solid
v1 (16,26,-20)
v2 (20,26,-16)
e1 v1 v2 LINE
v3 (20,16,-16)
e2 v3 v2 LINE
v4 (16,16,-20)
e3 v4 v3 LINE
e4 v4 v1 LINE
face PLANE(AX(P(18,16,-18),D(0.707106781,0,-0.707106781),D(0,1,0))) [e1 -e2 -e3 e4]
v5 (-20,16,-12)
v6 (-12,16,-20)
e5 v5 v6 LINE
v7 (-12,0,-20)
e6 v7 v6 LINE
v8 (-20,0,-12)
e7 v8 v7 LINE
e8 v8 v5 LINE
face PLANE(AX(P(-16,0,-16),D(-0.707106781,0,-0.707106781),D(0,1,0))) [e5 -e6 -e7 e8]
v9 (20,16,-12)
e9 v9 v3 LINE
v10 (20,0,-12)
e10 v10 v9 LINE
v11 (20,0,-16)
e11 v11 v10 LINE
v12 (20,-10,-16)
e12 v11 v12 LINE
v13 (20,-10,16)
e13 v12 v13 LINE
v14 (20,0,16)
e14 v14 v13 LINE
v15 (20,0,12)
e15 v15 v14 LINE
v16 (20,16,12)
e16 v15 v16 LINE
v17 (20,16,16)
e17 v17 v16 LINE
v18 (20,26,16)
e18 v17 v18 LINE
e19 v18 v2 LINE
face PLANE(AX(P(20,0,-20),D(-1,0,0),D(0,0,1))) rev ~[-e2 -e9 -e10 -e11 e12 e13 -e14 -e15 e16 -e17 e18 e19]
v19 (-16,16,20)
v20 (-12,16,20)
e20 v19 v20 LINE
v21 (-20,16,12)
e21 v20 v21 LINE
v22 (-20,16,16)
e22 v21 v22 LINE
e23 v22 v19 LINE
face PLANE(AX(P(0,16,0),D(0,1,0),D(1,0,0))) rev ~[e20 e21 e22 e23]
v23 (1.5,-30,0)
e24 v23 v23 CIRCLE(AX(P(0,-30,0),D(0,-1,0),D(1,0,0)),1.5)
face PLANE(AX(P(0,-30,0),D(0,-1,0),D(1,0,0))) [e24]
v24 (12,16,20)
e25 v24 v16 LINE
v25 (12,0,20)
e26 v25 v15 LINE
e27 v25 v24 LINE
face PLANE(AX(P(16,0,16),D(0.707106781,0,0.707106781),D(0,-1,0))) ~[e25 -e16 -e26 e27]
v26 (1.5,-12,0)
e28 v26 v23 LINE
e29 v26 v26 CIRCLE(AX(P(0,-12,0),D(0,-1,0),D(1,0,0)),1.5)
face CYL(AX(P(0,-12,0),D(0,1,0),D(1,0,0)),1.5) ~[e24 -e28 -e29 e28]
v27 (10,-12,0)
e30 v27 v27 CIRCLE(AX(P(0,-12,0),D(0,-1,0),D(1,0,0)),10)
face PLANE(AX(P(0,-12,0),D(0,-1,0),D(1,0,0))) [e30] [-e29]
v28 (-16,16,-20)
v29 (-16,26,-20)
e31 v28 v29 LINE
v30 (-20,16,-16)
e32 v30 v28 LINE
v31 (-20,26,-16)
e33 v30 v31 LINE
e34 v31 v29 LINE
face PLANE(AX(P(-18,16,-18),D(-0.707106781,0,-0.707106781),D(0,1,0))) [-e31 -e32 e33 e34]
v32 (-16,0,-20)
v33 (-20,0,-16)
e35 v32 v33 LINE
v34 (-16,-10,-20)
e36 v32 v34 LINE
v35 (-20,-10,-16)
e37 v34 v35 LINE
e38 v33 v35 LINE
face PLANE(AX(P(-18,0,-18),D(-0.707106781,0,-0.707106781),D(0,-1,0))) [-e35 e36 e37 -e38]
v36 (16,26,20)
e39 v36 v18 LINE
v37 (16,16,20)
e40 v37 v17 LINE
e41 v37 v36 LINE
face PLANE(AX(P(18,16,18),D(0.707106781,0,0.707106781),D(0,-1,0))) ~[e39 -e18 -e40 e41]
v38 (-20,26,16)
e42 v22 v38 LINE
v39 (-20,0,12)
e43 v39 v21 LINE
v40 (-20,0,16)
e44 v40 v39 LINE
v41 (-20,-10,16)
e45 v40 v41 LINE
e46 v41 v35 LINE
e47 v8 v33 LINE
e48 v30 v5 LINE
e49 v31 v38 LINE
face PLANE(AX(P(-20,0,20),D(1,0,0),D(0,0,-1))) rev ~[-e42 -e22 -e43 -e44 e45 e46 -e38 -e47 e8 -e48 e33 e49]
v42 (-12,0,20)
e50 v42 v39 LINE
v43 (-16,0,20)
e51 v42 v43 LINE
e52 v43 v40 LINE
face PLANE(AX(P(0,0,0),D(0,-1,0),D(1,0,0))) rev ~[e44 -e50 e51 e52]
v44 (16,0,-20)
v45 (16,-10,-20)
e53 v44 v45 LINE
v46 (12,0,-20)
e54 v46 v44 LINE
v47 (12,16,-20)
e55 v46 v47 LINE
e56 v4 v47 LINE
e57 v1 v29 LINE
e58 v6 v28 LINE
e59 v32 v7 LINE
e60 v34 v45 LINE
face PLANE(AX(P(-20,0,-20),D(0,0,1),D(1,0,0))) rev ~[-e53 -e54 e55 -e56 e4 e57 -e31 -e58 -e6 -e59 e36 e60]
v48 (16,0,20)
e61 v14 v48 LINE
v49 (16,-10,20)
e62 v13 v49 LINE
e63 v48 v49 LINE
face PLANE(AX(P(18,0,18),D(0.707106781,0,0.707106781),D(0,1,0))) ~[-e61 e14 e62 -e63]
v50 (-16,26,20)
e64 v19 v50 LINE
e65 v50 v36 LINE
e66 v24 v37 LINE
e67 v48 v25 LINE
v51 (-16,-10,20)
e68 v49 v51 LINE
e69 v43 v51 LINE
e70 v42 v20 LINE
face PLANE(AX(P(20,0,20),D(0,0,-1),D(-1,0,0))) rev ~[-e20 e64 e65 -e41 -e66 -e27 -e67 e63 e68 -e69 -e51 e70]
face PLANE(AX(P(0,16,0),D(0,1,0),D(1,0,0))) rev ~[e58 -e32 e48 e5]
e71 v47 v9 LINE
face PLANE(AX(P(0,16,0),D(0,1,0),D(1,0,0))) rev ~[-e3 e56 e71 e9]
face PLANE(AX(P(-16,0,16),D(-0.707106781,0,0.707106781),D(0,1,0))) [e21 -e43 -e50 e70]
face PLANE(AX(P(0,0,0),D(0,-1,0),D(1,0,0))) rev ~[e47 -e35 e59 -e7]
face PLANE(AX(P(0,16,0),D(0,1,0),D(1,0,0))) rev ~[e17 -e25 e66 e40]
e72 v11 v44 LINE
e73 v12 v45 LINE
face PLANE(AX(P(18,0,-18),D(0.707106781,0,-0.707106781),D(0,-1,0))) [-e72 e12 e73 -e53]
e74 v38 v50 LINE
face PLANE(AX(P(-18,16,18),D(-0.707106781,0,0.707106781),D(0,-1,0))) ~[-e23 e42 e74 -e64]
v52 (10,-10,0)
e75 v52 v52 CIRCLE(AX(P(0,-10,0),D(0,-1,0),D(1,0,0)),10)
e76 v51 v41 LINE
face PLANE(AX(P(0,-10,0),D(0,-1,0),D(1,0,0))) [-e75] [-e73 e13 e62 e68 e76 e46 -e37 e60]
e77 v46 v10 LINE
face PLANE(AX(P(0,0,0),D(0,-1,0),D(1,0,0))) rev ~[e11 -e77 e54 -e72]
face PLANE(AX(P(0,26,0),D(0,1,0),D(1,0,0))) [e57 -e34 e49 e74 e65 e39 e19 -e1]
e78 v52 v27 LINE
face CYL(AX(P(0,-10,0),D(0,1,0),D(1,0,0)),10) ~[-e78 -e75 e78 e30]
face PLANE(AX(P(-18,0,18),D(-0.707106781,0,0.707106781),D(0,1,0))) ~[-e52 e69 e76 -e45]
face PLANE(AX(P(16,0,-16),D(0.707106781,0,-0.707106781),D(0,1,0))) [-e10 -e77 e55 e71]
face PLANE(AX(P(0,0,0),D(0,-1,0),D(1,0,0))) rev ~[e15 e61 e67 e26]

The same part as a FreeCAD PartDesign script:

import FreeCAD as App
import Part
import Sketcher
from FreeCAD import Vector


def edges_at(feature, points):
    """Names of the edges that pass closest to the given points."""
    edges = feature.Shape.Edges
    near = lambda p: min(range(len(edges)), key=lambda i: edges[i].distToShape(Part.Vertex(*p))[0])
    return sorted({f"Edge{near(p) + 1}" for p in points})


def add_polygon(sketch, points):
    """Adds a closed chain of lines whose ends are joined by coincident constraints."""
    first, n = sketch.GeometryCount, len(points)
    for a, b in zip(points, points[1:] + points[:1]):
        sketch.addGeometry(Part.LineSegment(App.Vector(*a, 0), App.Vector(*b, 0)), False)
    for i in range(n):
        sketch.addConstraint(Sketcher.Constraint("Coincident", first + i, 2, first + (i + 1) % n, 1))

doc = App.newDocument("Part")
body = doc.addObject("PartDesign::Body", "Body")

# Sketch on XZ plane
sketch1 = body.newObject("Sketcher::SketchObject", "Sketch")
sketch1.AttachmentSupport = (doc.getObject("XZ_Plane"), [""])
sketch1.MapMode = "FlatFace"
add_polygon(sketch1, [(-20, 20), (20, 20), (20, -20), (-20, -20)])  # lines 0-3
sketch1.addConstraint([
    Sketcher.Constraint("Horizontal", 0),
    Sketcher.Constraint("Vertical", 1),
    Sketcher.Constraint("Horizontal", 2),
    Sketcher.Constraint("Vertical", 3),
    Sketcher.Constraint("Symmetric", 0, 2, 2, 2, -1, 1),
    Sketcher.Constraint("Equal", 2, 1),
    Sketcher.Constraint("DistanceX", 0, 1, 0, 2, 40.0),
])
pad1 = body.newObject("PartDesign::Pad", "Pad")
pad1.Profile = sketch1
pad1.Length = 16
pad1.Reversed = True
doc.recompute()

chamfer = body.newObject("PartDesign::Chamfer", "Chamfer")
chamfer.Base = (pad1, edges_at(pad1, [
    (-20, 8, 20),
    (20, 8, 20),
    (20, 8, -20),
    (-20, 8, -20),
]))
chamfer.Size = 8

# Sketch on XZ plane
sketch2 = body.newObject("Sketcher::SketchObject", "Sketch001")
sketch2.AttachmentSupport = (doc.getObject("XZ_Plane"), [""])
sketch2.MapMode = "FlatFace"
sketch2.AttachmentOffset = App.Placement(Vector(0, 0, -16), App.Rotation())
add_polygon(sketch2, [(-20, -20), (-20, 20), (20, 20), (20, -20)])  # lines 0-3
sketch2.addConstraint([
    Sketcher.Constraint("Vertical", 0),
    Sketcher.Constraint("Horizontal", 1),
    Sketcher.Constraint("Vertical", 2),
    Sketcher.Constraint("Horizontal", 3),
    Sketcher.Constraint("Symmetric", 0, 2, 2, 2, -1, 1),
    Sketcher.Constraint("Equal", 3, 0),
    Sketcher.Constraint("DistanceX", 1, 1, 1, 2, 40.0),
])
pad2 = body.newObject("PartDesign::Pad", "Pad001")
pad2.Profile = sketch2
pad2.Length = 10
pad2.Reversed = True
doc.recompute()

chamfer2 = body.newObject("PartDesign::Chamfer", "Chamfer001")
chamfer2.Base = (pad2, edges_at(pad2, [
    (20, 21, -20),
    (20, 21, 20),
    (-20, 21, 20),
    (-20, 21, -20),
]))
chamfer2.Size = 4

# Sketch on XZ plane
sketch3 = body.newObject("Sketcher::SketchObject", "Sketch002")
sketch3.AttachmentSupport = (doc.getObject("XZ_Plane"), [""])
sketch3.MapMode = "FlatFace"
add_polygon(sketch3, [(20, -20), (20, 20), (-20, 20), (-20, -20)])  # lines 0-3
sketch3.addConstraint([
    Sketcher.Constraint("Vertical", 0),
    Sketcher.Constraint("Horizontal", 1),
    Sketcher.Constraint("Vertical", 2),
    Sketcher.Constraint("Horizontal", 3),
    Sketcher.Constraint("Symmetric", 0, 2, 2, 2, -1, 1),
    Sketcher.Constraint("Equal", 3, 0),
    Sketcher.Constraint("DistanceX", 1, 2, 1, 1, 40.0),
])
pad3 = body.newObject("PartDesign::Pad", "Pad002")
pad3.Profile = sketch3
pad3.Length = 10
doc.recompute()

chamfer3 = body.newObject("PartDesign::Chamfer", "Chamfer002")
chamfer3.Base = (pad3, edges_at(pad3, [
    (-20, -5, 20),
    (20, -5, 20),
    (20, -5, -20),
    (-20, -5, -20),
]))
chamfer3.Size = 4

# Sketch on XZ plane
sketch4 = body.newObject("Sketcher::SketchObject", "Sketch003")
sketch4.AttachmentSupport = (doc.getObject("XZ_Plane"), [""])
sketch4.MapMode = "FlatFace"
sketch4.AttachmentOffset = App.Placement(Vector(0, 0, 10), App.Rotation())
sketch4.addGeometry(Part.Circle(Vector(0, 0, 0), Vector(0, 0, 1), 10), False)
sketch4.addConstraint([
    Sketcher.Constraint("Coincident", 0, 3, -1, 1),
    Sketcher.Constraint("Diameter", 0, 20.0),
])
pad4 = body.newObject("PartDesign::Pad", "Pad003")
pad4.Profile = sketch4
pad4.Length = 2

# Sketch on XZ plane
sketch5 = body.newObject("Sketcher::SketchObject", "Sketch004")
sketch5.AttachmentSupport = (doc.getObject("XZ_Plane"), [""])
sketch5.MapMode = "FlatFace"
sketch5.AttachmentOffset = App.Placement(Vector(0, 0, 12), App.Rotation())
sketch5.addGeometry(Part.Circle(Vector(0, 0, 0), Vector(0, 0, 1), 1.5), False)
sketch5.addConstraint([
    Sketcher.Constraint("Coincident", 0, 3, -1, 1),
    Sketcher.Constraint("Diameter", 0, 3.0),
])
pad5 = body.newObject("PartDesign::Pad", "Pad004")
pad5.Profile = sketch5
pad5.Length = 18

doc.recompute()
